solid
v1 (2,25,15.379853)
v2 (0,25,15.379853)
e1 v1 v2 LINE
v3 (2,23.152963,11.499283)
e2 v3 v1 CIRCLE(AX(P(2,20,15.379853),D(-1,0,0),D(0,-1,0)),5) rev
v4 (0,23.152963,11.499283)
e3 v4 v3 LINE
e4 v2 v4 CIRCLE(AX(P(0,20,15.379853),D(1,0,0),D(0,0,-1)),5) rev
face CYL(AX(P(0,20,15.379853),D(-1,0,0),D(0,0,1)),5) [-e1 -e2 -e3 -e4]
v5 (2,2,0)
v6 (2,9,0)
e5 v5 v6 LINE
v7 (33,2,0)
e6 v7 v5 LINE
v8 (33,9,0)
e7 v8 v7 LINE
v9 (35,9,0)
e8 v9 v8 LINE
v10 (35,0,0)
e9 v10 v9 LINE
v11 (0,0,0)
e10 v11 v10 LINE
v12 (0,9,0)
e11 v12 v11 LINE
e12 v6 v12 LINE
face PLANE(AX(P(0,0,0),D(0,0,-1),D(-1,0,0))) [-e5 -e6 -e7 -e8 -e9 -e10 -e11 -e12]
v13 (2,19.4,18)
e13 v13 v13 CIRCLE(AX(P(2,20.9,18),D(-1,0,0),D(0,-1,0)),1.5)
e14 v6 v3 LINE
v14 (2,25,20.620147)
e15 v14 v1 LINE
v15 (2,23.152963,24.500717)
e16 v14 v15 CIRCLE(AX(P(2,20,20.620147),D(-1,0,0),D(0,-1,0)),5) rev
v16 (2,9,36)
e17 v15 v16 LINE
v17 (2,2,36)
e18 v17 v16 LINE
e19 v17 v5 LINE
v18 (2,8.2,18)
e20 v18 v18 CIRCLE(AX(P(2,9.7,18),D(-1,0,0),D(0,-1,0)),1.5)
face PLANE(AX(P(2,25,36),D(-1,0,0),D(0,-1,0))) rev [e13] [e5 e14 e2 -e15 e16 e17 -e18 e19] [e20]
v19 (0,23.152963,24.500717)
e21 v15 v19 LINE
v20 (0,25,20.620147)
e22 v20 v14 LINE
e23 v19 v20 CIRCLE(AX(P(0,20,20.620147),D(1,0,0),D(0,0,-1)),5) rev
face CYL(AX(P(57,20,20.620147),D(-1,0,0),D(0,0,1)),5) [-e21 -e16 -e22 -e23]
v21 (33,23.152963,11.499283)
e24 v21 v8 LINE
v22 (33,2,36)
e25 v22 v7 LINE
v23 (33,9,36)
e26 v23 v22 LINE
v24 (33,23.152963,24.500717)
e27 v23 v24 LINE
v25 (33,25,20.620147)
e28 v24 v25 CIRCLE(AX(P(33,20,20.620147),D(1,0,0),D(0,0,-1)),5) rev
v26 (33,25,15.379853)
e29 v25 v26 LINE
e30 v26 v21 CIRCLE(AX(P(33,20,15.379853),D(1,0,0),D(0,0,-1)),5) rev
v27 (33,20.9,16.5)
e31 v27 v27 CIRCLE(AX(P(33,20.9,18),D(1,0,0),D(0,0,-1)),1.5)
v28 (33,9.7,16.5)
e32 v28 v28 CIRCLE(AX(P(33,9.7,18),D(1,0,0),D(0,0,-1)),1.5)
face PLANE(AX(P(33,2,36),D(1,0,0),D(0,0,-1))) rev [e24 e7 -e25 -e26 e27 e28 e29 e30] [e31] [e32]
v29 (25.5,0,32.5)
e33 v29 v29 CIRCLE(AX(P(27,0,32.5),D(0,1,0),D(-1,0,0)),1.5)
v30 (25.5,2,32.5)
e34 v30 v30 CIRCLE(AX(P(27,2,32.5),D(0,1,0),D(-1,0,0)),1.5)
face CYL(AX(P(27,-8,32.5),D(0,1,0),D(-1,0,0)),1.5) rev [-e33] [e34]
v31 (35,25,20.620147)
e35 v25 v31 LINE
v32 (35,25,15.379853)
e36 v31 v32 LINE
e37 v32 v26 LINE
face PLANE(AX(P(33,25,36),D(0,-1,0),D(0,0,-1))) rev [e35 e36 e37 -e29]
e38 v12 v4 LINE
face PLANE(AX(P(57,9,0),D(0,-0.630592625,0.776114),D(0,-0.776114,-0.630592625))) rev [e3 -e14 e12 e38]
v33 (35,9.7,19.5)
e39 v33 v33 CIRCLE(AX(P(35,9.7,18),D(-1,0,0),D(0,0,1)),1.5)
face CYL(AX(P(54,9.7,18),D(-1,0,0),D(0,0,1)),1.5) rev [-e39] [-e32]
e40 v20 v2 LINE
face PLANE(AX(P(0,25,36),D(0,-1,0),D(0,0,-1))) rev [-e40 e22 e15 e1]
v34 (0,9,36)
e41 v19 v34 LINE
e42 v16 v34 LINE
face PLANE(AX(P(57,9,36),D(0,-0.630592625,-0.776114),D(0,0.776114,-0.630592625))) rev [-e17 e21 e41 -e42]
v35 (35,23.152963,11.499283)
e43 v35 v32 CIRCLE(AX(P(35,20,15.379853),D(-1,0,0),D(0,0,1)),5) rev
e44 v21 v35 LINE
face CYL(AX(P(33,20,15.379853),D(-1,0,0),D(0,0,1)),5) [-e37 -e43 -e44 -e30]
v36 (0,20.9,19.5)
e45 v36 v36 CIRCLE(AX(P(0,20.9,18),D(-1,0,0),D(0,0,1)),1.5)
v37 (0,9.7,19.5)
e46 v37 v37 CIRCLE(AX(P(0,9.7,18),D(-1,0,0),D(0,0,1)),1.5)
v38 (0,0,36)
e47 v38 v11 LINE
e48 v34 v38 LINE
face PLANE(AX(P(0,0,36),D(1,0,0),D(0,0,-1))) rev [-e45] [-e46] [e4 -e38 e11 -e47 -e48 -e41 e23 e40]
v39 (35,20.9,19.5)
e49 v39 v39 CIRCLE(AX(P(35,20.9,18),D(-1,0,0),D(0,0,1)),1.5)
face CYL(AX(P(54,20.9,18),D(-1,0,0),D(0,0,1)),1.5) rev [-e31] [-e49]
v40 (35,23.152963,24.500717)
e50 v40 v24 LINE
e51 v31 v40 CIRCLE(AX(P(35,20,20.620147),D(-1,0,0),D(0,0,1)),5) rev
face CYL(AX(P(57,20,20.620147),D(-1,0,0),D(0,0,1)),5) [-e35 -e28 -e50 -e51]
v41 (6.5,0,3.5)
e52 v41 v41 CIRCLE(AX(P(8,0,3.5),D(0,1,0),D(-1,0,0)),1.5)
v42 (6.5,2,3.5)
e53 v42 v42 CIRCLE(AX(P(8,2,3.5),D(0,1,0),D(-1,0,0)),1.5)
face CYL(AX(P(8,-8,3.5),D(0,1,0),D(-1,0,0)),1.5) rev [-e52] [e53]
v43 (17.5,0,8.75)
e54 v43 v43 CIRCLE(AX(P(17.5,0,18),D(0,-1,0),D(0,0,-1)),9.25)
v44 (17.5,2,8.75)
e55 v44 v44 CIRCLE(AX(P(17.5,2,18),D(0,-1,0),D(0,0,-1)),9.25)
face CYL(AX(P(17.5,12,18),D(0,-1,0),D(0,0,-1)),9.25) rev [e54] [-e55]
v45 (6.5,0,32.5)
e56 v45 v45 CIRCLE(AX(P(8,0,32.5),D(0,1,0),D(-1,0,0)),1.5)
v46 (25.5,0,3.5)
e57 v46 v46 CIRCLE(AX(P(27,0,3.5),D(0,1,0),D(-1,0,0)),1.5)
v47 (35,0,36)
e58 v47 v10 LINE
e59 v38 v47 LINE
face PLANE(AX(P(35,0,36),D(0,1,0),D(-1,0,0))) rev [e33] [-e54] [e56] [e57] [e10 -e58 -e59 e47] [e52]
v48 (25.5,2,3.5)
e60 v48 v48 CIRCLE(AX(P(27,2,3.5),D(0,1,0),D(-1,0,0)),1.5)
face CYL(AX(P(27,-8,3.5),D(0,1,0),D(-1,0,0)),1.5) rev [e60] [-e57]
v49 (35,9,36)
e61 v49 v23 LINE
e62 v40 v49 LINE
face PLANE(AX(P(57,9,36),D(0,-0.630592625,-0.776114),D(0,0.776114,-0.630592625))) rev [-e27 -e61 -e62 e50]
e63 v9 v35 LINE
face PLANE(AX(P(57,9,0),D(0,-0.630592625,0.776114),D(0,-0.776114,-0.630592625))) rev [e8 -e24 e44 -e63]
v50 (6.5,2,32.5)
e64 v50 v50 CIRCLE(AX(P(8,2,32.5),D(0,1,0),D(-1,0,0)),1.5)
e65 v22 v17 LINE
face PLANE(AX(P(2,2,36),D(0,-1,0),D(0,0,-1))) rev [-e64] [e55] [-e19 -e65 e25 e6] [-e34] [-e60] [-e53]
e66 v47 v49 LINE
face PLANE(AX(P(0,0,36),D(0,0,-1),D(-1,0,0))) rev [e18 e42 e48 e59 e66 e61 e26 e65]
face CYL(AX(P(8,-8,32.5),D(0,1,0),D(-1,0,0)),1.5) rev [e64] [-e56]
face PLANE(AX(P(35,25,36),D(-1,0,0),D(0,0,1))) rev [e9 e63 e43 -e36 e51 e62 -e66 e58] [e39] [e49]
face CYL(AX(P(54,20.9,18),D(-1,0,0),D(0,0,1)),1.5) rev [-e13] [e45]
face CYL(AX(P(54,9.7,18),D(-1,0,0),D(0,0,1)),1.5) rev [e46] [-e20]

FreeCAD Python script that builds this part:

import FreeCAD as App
import Part
import Sketcher

V = App.Vector
Q = App.Units.Quantity


def edges_at(feature, points):
    """Names of the edges that pass closest to the given points."""
    edges = feature.Shape.Edges
    near = lambda p: min(range(len(edges)), key=lambda i: edges[i].distToShape(Part.Vertex(*p))[0])
    return sorted({f"Edge{near(p) + 1}" for p in points})

doc = App.newDocument("Part")
body = doc.addObject("PartDesign::Body", "Body")

sketch1 = body.newObject("Sketcher::SketchObject", "Sketch")
sketch1.AttachmentSupport = (doc.getObject("XY_Plane"), [""])
sketch1.MapMode = "FlatFace"
sketch1.addGeometry(Part.LineSegment(V(0, 25, 0), V(0, 0, 0)), False)
sketch1.addGeometry(Part.LineSegment(V(0, 0, 0), V(35, 0, 0)), False)
sketch1.addGeometry(Part.LineSegment(V(35, 0, 0), V(35, 25, 0)), False)
sketch1.addGeometry(Part.LineSegment(V(35, 25, 0), V(33, 25, 0)), False)
sketch1.addGeometry(Part.LineSegment(V(33, 25, 0), V(33, 2, 0)), False)
sketch1.addGeometry(Part.LineSegment(V(33, 2, 0), V(2, 2, 0)), False)
sketch1.addGeometry(Part.LineSegment(V(2, 2, 0), V(2, 25, 0)), False)
sketch1.addGeometry(Part.LineSegment(V(2, 25, 0), V(0, 25, 0)), False)
sketch1.addConstraint(Sketcher.Constraint("Coincident", 0, 2, 1, 1))
sketch1.addConstraint(Sketcher.Constraint("Coincident", 1, 2, 2, 1))
sketch1.addConstraint(Sketcher.Constraint("Coincident", 2, 2, 3, 1))
sketch1.addConstraint(Sketcher.Constraint("Coincident", 3, 2, 4, 1))
sketch1.addConstraint(Sketcher.Constraint("Coincident", 4, 2, 5, 1))
sketch1.addConstraint(Sketcher.Constraint("Coincident", 5, 2, 6, 1))
sketch1.addConstraint(Sketcher.Constraint("Coincident", 6, 2, 7, 1))
sketch1.addConstraint(Sketcher.Constraint("Coincident", 7, 2, 0, 1))
sketch1.addConstraint(Sketcher.Constraint("Vertical", 0))
sketch1.addConstraint(Sketcher.Constraint("Horizontal", 1))
sketch1.addConstraint(Sketcher.Constraint("Vertical", 2))
sketch1.addConstraint(Sketcher.Constraint("Horizontal", 3))
sketch1.addConstraint(Sketcher.Constraint("Vertical", 4))
sketch1.addConstraint(Sketcher.Constraint("Horizontal", 5))
sketch1.addConstraint(Sketcher.Constraint("Vertical", 6))
sketch1.addConstraint(Sketcher.Constraint("Horizontal", 7))
sketch1.addConstraint(Sketcher.Constraint("Coincident", 0, 2, -1, 1))
sketch1.addConstraint(Sketcher.Constraint("Horizontal", 3, 2, 6, 2))
sketch1.addConstraint(Sketcher.Constraint("Equal", 3, 7))
sketch1.addConstraint(Sketcher.Constraint("DistanceX", 1, 1, 1, 2, Q("35 mm")))
sketch1.addConstraint(Sketcher.Constraint("DistanceX", 3, 2, 3, 1, Q("2 mm")))
sketch1.addConstraint(Sketcher.Constraint("DistanceY", 0, 2, 0, 1, Q("25 mm")))
sketch1.addConstraint(Sketcher.Constraint("DistanceY", 4, 2, 4, 1, Q("23 mm")))
pad1 = body.newObject("PartDesign::Pad", "Pad")
pad1.Profile = sketch1
pad1.Length = 36

sketch2 = body.newObject("Sketcher::SketchObject", "Sketch001")
sketch2.AttachmentSupport = (doc.getObject("XZ_Plane"), [""])
sketch2.MapMode = "FlatFace"
sketch2.addGeometry(Part.Circle(V(18, 18, 0), V(0, 0, 1), 9), False)
sketch2.addConstraint(Sketcher.Constraint("Diameter", 0, Q("18.5 mm")))
sketch2.addConstraint(Sketcher.Constraint("DistanceY", -1, 1, 0, 3, Q("18 mm")))
sketch2.addConstraint(Sketcher.Constraint("DistanceX", -1, 1, 0, 3, Q("17.5 mm")))
pocket1 = body.newObject("PartDesign::Pocket", "Pocket")
pocket1.Profile = sketch2
pocket1.Length = 12

sketch3 = body.newObject("Sketcher::SketchObject", "Sketch002")
sketch3.AttachmentSupport = (doc.getObject("YZ_Plane"), [""])
sketch3.MapMode = "FlatFace"
sketch3.addGeometry(Part.Circle(V(20.9, 18, 0), V(0, 0, 1), 1.5), False)
sketch3.addGeometry(Part.Circle(V(9.7, 18, 0), V(0, 0, 1), 1.5), False)
sketch3.addConstraint(Sketcher.Constraint("Equal", 0, 1))
sketch3.addConstraint(Sketcher.Constraint("Horizontal", 0, 3, 1, 3))
sketch3.addConstraint(Sketcher.Constraint("Diameter", 0, Q("3 mm")))
sketch3.addConstraint(Sketcher.Constraint("DistanceY", -1, 1, 0, 3, Q("18 mm")))
sketch3.addConstraint(Sketcher.Constraint("DistanceX", -1, 1, 0, 3, Q("20.9 mm")))
sketch3.addConstraint(Sketcher.Constraint("DistanceX", -1, 1, 1, 3, Q("9.7 mm")))
pocket2 = body.newObject("PartDesign::Pocket", "Pocket001")
pocket2.Profile = sketch3
pocket2.Length = 54
pocket2.Reversed = True

sketch4 = body.newObject("Sketcher::SketchObject", "Sketch003")
sketch4.AttachmentSupport = (doc.getObject("XZ_Plane"), [""])
sketch4.MapMode = "FlatFace"
sketch4.AttachmentOffset = App.Placement(V(0, 0, -2), App.Rotation())
sketch4.addGeometry(Part.Circle(V(8, 3.5, 0), V(0, 0, 1), 1.5), False)
sketch4.addGeometry(Part.Circle(V(27, 3.5, 0), V(0, 0, 1), 1.5), False)
sketch4.addGeometry(Part.Circle(V(8, 32.5, 0), V(0, 0, 1), 1.5), False)
sketch4.addGeometry(Part.Circle(V(27, 32.5, 0), V(0, 0, 1), 1.5), False)
sketch4.addConstraint(Sketcher.Constraint("Equal", 0, 1))
sketch4.addConstraint(Sketcher.Constraint("Equal", 1, 2))
sketch4.addConstraint(Sketcher.Constraint("Equal", 2, 3))
sketch4.addConstraint(Sketcher.Constraint("Horizontal", 0, 3, 1, 3))
sketch4.addConstraint(Sketcher.Constraint("Horizontal", 2, 3, 3, 3))
sketch4.addConstraint(Sketcher.Constraint("Vertical", 0, 3, 2, 3))
sketch4.addConstraint(Sketcher.Constraint("Vertical", 1, 3, 3, 3))
sketch4.addConstraint(Sketcher.Constraint("Diameter", 0, Q("3 mm")))
sketch4.addConstraint(Sketcher.Constraint("DistanceX", -1, 1, 0, 3, Q("8 mm")))
sketch4.addConstraint(Sketcher.Constraint("DistanceX", -1, 1, 1, 3, Q("27 mm")))
sketch4.addConstraint(Sketcher.Constraint("DistanceY", 0, 3, 2, 3, Q("29 mm")))
sketch4.addConstraint(Sketcher.Constraint("DistanceY", -1, 1, 0, 3, Q("3.5 mm")))
pocket3 = body.newObject("PartDesign::Pocket", "Pocket002")
pocket3.Profile = sketch4
pocket3.Length = 10
pocket3.Reversed = True

sketch5 = body.newObject("Sketcher::SketchObject", "Sketch004")
sketch5.AttachmentSupport = (doc.getObject("YZ_Plane"), [""])
sketch5.MapMode = "FlatFace"
sketch5.addGeometry(Part.LineSegment(V(9, 0, 0), V(25, 13, 0)), False)
sketch5.addGeometry(Part.LineSegment(V(25, 13, 0), V(25, 0, 0)), False)
sketch5.addGeometry(Part.LineSegment(V(25, 0, 0), V(9, 0, 0)), False)
sketch5.addGeometry(Part.LineSegment(V(9, 36, 0), V(25, 36, 0)), False)
sketch5.addGeometry(Part.LineSegment(V(25, 36, 0), V(25, 23, 0)), False)
sketch5.addGeometry(Part.LineSegment(V(25, 23, 0), V(9, 36, 0)), False)
sketch5.addConstraint(Sketcher.Constraint("Coincident", 0, 2, 1, 1))
sketch5.addConstraint(Sketcher.Constraint("Coincident", 1, 2, 2, 1))
sketch5.addConstraint(Sketcher.Constraint("Coincident", 2, 2, 0, 1))
sketch5.addConstraint(Sketcher.Constraint("Coincident", 3, 2, 4, 1))
sketch5.addConstraint(Sketcher.Constraint("Coincident", 4, 2, 5, 1))
sketch5.addConstraint(Sketcher.Constraint("Coincident", 5, 2, 3, 1))
sketch5.addConstraint(Sketcher.Constraint("Vertical", 1))
sketch5.addConstraint(Sketcher.Constraint("Horizontal", 2))
sketch5.addConstraint(Sketcher.Constraint("Horizontal", 3))
sketch5.addConstraint(Sketcher.Constraint("Vertical", 4))
sketch5.addConstraint(Sketcher.Constraint("PointOnObject", 1, 2, -1))
sketch5.addConstraint(Sketcher.Constraint("Vertical", 1, 2, 3, 2))
sketch5.addConstraint(Sketcher.Constraint("Vertical", 2, 2, 5, 2))
sketch5.addConstraint(Sketcher.Constraint("Equal", 1, 4))
sketch5.addConstraint(Sketcher.Constraint("DistanceX", 2, 2, 2, 1, Q("16 mm")))
sketch5.addConstraint(Sketcher.Constraint("DistanceY", 1, 2, 1, 1, Q("13 mm")))
sketch5.addConstraint(Sketcher.Constraint("DistanceX", -1, 1, 0, 2, Q("25 mm")))
sketch5.addConstraint(Sketcher.Constraint("DistanceY", -1, 1, 3, 2, Q("36 mm")))
pocket4 = body.newObject("PartDesign::Pocket", "Pocket003")
pocket4.Profile = sketch5
pocket4.Length = 57
pocket4.Reversed = True
doc.recompute()

fillet = body.newObject("PartDesign::Fillet", "Fillet")
fillet.Base = (pocket4, edges_at(pocket4, [
    (34, 25, 13),
    (1, 25, 13),
    (34, 25, 23),
    (1, 25, 23),
]))
fillet.Radius = 5

doc.recompute()
